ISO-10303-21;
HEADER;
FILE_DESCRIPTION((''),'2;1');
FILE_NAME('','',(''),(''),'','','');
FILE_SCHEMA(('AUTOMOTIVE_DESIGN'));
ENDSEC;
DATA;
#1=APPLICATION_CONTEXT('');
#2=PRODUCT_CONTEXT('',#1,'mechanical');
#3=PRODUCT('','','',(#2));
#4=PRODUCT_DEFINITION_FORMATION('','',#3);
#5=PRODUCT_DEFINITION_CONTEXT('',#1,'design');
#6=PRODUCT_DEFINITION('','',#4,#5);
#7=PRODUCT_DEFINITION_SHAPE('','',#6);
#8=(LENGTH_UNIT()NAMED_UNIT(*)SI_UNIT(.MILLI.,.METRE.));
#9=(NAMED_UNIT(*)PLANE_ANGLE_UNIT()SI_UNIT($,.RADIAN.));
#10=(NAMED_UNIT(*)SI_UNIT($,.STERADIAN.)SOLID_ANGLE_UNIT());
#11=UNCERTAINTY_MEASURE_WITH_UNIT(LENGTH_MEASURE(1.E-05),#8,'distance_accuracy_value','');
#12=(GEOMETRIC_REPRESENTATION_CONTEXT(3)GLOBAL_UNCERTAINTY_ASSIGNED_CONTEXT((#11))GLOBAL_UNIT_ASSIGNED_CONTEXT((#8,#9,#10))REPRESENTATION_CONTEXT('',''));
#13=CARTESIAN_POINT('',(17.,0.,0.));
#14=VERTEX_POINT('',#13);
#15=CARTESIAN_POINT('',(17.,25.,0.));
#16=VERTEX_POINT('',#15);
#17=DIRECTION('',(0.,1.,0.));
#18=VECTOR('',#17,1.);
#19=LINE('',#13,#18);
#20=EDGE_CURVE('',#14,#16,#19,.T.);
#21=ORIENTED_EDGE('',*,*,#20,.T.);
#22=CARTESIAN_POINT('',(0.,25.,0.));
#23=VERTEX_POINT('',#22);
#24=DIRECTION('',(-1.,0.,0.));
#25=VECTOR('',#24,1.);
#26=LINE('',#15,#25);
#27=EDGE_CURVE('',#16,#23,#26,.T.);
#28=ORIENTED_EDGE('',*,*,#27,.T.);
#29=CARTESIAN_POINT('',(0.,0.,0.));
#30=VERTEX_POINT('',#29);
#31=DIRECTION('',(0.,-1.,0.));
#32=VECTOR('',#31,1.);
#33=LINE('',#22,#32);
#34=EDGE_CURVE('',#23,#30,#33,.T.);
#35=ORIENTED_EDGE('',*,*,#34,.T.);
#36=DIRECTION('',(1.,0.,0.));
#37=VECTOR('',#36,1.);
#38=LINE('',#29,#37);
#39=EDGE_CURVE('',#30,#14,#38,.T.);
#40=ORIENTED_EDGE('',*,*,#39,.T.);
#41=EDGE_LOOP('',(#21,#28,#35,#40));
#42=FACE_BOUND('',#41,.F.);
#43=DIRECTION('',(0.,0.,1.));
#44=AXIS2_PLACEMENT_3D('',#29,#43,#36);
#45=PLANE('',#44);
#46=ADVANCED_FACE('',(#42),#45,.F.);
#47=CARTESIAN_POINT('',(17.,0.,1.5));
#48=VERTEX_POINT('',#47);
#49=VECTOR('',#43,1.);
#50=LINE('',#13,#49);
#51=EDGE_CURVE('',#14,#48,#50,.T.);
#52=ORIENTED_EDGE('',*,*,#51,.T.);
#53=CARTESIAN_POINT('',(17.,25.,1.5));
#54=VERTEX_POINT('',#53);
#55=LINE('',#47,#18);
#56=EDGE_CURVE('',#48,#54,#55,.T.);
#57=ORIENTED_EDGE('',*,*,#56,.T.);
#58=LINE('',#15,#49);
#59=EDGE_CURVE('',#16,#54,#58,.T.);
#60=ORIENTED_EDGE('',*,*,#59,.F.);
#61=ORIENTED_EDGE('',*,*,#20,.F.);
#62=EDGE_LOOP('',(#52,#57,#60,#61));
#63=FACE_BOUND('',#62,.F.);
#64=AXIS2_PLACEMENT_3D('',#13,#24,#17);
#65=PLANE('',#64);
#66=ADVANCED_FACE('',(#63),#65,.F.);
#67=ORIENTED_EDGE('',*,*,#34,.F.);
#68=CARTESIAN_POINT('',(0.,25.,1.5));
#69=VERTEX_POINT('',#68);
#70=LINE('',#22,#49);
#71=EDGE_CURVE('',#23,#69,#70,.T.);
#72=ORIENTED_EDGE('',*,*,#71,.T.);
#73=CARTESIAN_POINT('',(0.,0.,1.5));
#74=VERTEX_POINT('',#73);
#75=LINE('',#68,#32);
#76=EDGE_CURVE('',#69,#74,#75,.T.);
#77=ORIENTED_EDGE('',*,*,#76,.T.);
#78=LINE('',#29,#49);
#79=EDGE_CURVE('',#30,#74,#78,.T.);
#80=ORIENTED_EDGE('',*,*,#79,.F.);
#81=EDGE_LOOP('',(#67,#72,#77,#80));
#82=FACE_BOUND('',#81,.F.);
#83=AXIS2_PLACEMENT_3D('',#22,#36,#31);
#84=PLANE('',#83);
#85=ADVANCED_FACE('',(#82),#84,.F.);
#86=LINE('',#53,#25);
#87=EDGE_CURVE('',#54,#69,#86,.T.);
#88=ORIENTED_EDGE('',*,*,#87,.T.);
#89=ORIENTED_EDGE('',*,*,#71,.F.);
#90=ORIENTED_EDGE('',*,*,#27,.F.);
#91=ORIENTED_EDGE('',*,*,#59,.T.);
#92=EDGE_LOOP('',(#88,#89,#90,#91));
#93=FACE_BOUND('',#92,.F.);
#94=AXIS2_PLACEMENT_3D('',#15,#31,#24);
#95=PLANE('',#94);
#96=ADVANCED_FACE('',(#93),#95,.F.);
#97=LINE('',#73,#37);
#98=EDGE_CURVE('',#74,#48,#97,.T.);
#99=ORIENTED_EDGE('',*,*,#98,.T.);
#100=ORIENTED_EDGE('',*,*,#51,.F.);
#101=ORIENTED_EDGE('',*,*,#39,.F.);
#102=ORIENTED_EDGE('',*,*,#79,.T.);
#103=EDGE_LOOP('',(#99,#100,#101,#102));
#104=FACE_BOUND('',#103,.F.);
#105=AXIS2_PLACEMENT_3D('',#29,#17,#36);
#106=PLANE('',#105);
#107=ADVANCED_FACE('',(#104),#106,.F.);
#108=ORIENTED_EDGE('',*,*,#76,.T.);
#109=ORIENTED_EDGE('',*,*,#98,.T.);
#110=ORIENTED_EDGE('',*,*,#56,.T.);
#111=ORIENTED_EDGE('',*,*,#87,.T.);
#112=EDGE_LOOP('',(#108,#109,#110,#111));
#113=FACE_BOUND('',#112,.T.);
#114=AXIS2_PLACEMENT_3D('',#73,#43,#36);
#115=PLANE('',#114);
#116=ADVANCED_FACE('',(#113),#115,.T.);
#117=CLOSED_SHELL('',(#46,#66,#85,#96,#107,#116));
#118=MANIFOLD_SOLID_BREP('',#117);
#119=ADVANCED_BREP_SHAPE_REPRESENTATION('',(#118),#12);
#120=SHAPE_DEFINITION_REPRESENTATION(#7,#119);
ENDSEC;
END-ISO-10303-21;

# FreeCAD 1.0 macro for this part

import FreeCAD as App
import Part
import Sketcher
from FreeCAD import Vector
Q = App.Units.Quantity

doc = App.newDocument("Part")
body = doc.addObject("PartDesign::Body", "Body")

sketch1 = doc.addObject("Sketcher::SketchObject", "Sketch")
body.addObject(sketch1)
sketch1.AttachmentSupport = (doc.XY_Plane, [""])
sketch1.MapMode = "FlatFace"
sketch1.addGeometry(Part.LineSegment(Vector(0, 25, 0), Vector(0, 0, 0)), False)
sketch1.addGeometry(Part.LineSegment(Vector(0, 0, 0), Vector(17, 0, 0)), False)
sketch1.addGeometry(Part.LineSegment(Vector(17, 0, 0), Vector(17, 25, 0)), False)
sketch1.addGeometry(Part.LineSegment(Vector(17, 25, 0), Vector(0, 25, 0)), False)
sketch1.addConstraint(Sketcher.Constraint("Coincident", 0, 2, 1, 1))
sketch1.addConstraint(Sketcher.Constraint("Coincident", 1, 2, 2, 1))
sketch1.addConstraint(Sketcher.Constraint("Coincident", 2, 2, 3, 1))
sketch1.addConstraint(Sketcher.Constraint("Coincident", 3, 2, 0, 1))
sketch1.addConstraint(Sketcher.Constraint("Vertical", 0))
sketch1.addConstraint(Sketcher.Constraint("Horizontal", 1))
sketch1.addConstraint(Sketcher.Constraint("Vertical", 2))
sketch1.addConstraint(Sketcher.Constraint("Horizontal", 3))
sketch1.addConstraint(Sketcher.Constraint("Coincident", 0, 2, -1, 1))
sketch1.addConstraint(Sketcher.Constraint("DistanceX", 1, 1, 1, 2, Q("17 mm")))
sketch1.addConstraint(Sketcher.Constraint("DistanceY", 0, 2, 0, 1, Q("25 mm")))
pad1 = doc.addObject("PartDesign::Pad", "Pad")
body.addObject(pad1)
pad1.Profile = sketch1
pad1.Length = 1.5

doc.recompute()
